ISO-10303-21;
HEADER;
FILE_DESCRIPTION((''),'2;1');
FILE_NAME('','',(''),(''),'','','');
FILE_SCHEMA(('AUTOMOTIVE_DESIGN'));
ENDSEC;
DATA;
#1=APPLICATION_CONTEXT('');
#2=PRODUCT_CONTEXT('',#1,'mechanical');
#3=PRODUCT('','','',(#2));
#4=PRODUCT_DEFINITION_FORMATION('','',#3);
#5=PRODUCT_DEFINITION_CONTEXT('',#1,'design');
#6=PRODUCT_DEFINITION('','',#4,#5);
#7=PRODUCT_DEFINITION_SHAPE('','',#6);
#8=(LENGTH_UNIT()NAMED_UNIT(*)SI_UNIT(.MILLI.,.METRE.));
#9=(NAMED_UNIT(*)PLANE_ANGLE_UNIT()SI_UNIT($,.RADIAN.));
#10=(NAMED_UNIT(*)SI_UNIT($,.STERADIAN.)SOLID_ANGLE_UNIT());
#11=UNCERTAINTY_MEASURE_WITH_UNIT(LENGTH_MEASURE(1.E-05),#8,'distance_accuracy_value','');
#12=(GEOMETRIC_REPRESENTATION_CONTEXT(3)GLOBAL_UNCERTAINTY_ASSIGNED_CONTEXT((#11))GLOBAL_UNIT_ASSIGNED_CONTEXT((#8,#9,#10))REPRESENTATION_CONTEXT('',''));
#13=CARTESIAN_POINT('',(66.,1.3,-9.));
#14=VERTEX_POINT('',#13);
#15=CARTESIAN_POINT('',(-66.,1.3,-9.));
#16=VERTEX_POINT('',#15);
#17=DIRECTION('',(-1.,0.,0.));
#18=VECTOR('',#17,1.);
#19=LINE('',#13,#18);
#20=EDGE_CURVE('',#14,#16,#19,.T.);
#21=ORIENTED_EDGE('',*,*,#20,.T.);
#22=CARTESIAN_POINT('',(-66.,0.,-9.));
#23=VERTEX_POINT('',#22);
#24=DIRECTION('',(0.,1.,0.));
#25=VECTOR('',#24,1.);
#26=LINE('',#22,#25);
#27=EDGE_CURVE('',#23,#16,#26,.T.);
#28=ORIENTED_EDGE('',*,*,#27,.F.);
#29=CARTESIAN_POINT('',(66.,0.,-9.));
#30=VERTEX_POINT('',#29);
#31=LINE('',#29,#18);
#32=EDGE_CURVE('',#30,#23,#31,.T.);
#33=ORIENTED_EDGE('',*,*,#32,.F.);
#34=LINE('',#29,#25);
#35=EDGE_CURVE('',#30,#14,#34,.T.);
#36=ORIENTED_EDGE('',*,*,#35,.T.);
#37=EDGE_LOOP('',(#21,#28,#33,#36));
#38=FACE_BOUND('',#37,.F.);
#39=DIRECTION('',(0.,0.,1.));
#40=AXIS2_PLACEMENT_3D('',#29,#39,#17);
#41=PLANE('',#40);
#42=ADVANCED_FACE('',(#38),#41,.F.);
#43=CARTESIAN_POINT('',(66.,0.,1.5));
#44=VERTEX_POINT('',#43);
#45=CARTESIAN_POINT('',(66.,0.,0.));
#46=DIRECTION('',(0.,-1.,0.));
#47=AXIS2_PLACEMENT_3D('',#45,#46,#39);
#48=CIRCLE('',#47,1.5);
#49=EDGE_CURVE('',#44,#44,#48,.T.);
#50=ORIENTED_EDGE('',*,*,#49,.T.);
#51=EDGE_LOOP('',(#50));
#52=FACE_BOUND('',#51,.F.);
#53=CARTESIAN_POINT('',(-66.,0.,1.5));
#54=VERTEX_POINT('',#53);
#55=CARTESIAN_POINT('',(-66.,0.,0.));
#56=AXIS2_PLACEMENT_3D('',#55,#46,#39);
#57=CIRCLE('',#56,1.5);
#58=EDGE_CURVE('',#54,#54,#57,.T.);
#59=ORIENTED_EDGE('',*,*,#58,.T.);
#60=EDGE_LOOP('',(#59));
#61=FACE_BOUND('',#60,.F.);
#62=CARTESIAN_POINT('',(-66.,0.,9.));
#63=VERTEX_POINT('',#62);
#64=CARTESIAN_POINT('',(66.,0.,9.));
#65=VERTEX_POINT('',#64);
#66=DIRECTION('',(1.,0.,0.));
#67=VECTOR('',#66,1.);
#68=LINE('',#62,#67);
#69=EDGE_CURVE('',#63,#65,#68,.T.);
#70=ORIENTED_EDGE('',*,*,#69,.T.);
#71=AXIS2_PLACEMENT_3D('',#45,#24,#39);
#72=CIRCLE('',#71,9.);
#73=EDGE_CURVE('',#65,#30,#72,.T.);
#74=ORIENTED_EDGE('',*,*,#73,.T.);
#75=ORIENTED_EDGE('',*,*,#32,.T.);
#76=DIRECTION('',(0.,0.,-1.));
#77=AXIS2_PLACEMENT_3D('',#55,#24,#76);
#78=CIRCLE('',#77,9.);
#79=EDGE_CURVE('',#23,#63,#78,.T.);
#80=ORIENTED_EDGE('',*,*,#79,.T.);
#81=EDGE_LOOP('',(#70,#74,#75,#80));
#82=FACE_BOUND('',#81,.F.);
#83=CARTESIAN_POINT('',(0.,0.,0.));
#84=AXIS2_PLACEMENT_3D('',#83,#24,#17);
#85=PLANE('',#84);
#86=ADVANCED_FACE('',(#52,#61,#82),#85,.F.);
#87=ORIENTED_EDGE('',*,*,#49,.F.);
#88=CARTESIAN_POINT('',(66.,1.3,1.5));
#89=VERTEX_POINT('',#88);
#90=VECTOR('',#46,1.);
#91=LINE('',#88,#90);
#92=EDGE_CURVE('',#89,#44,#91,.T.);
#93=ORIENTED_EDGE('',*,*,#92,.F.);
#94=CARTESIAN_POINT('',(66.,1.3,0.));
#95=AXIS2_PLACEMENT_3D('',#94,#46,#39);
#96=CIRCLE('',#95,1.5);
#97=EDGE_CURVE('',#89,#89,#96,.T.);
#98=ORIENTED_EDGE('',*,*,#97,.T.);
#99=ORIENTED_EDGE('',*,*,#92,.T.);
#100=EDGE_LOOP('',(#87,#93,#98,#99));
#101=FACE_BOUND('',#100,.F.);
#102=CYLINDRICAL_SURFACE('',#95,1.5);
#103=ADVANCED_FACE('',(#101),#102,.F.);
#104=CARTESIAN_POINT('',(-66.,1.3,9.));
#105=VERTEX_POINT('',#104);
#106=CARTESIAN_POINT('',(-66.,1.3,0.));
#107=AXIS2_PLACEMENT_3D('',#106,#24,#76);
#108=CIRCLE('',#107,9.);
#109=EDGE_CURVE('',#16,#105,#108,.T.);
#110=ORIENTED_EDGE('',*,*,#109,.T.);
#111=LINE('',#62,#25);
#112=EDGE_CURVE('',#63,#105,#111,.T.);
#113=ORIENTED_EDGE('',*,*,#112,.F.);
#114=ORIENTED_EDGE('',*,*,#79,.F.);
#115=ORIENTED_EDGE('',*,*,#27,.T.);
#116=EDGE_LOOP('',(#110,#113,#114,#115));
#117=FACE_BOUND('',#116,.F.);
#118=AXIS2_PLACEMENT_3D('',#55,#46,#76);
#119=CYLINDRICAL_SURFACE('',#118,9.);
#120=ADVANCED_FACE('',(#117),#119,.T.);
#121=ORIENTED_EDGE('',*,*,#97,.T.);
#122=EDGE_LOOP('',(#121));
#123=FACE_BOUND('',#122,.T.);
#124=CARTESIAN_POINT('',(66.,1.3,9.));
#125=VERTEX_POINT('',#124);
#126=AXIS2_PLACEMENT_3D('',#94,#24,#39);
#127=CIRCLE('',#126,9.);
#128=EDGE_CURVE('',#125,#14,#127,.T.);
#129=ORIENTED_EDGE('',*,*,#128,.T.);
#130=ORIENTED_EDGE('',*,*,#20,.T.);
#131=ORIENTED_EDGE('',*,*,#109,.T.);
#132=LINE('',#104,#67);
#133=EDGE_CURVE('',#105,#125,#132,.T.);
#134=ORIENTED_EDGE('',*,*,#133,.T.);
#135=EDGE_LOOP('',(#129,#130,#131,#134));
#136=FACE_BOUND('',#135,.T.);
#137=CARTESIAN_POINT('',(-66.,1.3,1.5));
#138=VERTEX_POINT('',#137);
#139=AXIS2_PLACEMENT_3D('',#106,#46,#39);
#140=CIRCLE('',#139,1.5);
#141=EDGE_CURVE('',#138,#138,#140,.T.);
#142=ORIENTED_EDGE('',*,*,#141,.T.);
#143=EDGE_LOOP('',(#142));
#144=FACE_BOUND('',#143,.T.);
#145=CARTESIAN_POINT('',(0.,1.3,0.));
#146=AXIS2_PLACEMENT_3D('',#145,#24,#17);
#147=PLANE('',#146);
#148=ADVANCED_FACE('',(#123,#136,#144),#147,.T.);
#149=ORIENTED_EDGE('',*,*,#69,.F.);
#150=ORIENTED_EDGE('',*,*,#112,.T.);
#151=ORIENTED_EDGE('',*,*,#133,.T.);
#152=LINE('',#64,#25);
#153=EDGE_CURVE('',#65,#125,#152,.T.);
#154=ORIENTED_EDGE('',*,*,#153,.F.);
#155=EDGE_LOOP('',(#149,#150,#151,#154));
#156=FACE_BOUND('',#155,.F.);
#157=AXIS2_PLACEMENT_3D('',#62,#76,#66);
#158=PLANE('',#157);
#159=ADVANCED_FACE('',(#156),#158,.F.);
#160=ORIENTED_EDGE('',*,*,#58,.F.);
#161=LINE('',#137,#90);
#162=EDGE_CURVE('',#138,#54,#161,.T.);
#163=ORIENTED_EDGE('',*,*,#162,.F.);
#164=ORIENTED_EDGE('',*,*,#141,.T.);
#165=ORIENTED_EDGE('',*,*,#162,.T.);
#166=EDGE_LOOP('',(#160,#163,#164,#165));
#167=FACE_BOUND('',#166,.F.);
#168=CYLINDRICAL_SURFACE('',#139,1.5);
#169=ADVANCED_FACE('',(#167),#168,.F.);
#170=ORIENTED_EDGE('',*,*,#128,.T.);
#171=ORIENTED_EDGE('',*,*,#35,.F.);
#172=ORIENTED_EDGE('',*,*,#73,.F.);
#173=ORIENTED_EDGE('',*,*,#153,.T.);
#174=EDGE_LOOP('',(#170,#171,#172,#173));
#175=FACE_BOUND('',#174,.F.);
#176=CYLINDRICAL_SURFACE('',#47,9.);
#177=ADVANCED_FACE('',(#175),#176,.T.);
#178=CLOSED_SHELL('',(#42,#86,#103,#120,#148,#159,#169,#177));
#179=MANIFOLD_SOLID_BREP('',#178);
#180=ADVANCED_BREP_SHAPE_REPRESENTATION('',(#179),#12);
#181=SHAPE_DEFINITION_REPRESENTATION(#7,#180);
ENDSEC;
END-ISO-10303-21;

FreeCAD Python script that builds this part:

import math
import FreeCAD as App
import Part
import Sketcher
from FreeCAD import Vector
Q = App.Units.Quantity

doc = App.newDocument("Part")
body = doc.addObject("PartDesign::Body", "Body")

sketch1 = doc.addObject("Sketcher::SketchObject", "Sketch")
body.addObject(sketch1)
sketch1.AttachmentSupport = (doc.XZ_Plane, [""])
sketch1.MapMode = "FlatFace"
sketch1.addGeometry([
    Part.ArcOfCircle(Part.Circle(Vector(-66, 0, 0), Vector(0, 0, 1), 9), math.radians(90), math.radians(270)),
    Part.LineSegment(Vector(-66, 9, 0), Vector(66, 9, 0)),
    Part.ArcOfCircle(Part.Circle(Vector(66, 0, 0), Vector(0, 0, 1), 9), math.radians(-90), math.radians(90)),
    Part.LineSegment(Vector(66, -9, 0), Vector(-66, -9, 0)),
], False)
sketch1.addConstraint([
    Sketcher.Constraint("Tangent", 0, 1, 1, 1),
    Sketcher.Constraint("Tangent", 1, 2, 2, 2),
    Sketcher.Constraint("Tangent", 2, 1, 3, 1),
    Sketcher.Constraint("Tangent", 3, 2, 0, 2),
    Sketcher.Constraint("Horizontal", 1),
    Sketcher.Constraint("Horizontal", 3),
    Sketcher.Constraint("Symmetric", 0, 3, 2, 3, -1, 1),
    Sketcher.Constraint("Radius", 0, Q("9 mm")),
    Sketcher.Constraint("DistanceX", 0, 3, -1, 1, Q("66 mm")),
])
pad1 = doc.addObject("PartDesign::Pad", "Pad")
body.addObject(pad1)
pad1.Profile = sketch1
pad1.Length = 1.3
pad1.Reversed = True

sketch2 = doc.addObject("Sketcher::SketchObject", "Sketch001")
body.addObject(sketch2)
sketch2.AttachmentSupport = (doc.XZ_Plane, [""])
sketch2.MapMode = "FlatFace"
sketch2.AttachmentOffset = App.Placement(Vector(0, 0, -1.3), App.Rotation())
sketch2.addGeometry([
    Part.Circle(Vector(-66, 0, 0), Vector(0, 0, 1), 1.5),
    Part.Circle(Vector(66, 0, 0), Vector(0, 0, 1), 1.5),
], False)
sketch2.addConstraint([
    Sketcher.Constraint("Equal", 0, 1),
    Sketcher.Constraint("Symmetric", 0, 3, 1, 3, -1, 1),
    Sketcher.Constraint("PointOnObject", 0, 3, -1),
    Sketcher.Constraint("Diameter", 0, Q("3 mm")),
    Sketcher.Constraint("DistanceX", 0, 3, -1, 1, Q("66 mm")),
])
doc.recompute()
hole = doc.addObject("PartDesign::Hole", "Hole")
body.addObject(hole)
hole.Profile = sketch2
hole.ThreadType = "None"
hole.Diameter = 3
hole.DepthType = "ThroughAll"
hole.Reversed = True

doc.recompute()
